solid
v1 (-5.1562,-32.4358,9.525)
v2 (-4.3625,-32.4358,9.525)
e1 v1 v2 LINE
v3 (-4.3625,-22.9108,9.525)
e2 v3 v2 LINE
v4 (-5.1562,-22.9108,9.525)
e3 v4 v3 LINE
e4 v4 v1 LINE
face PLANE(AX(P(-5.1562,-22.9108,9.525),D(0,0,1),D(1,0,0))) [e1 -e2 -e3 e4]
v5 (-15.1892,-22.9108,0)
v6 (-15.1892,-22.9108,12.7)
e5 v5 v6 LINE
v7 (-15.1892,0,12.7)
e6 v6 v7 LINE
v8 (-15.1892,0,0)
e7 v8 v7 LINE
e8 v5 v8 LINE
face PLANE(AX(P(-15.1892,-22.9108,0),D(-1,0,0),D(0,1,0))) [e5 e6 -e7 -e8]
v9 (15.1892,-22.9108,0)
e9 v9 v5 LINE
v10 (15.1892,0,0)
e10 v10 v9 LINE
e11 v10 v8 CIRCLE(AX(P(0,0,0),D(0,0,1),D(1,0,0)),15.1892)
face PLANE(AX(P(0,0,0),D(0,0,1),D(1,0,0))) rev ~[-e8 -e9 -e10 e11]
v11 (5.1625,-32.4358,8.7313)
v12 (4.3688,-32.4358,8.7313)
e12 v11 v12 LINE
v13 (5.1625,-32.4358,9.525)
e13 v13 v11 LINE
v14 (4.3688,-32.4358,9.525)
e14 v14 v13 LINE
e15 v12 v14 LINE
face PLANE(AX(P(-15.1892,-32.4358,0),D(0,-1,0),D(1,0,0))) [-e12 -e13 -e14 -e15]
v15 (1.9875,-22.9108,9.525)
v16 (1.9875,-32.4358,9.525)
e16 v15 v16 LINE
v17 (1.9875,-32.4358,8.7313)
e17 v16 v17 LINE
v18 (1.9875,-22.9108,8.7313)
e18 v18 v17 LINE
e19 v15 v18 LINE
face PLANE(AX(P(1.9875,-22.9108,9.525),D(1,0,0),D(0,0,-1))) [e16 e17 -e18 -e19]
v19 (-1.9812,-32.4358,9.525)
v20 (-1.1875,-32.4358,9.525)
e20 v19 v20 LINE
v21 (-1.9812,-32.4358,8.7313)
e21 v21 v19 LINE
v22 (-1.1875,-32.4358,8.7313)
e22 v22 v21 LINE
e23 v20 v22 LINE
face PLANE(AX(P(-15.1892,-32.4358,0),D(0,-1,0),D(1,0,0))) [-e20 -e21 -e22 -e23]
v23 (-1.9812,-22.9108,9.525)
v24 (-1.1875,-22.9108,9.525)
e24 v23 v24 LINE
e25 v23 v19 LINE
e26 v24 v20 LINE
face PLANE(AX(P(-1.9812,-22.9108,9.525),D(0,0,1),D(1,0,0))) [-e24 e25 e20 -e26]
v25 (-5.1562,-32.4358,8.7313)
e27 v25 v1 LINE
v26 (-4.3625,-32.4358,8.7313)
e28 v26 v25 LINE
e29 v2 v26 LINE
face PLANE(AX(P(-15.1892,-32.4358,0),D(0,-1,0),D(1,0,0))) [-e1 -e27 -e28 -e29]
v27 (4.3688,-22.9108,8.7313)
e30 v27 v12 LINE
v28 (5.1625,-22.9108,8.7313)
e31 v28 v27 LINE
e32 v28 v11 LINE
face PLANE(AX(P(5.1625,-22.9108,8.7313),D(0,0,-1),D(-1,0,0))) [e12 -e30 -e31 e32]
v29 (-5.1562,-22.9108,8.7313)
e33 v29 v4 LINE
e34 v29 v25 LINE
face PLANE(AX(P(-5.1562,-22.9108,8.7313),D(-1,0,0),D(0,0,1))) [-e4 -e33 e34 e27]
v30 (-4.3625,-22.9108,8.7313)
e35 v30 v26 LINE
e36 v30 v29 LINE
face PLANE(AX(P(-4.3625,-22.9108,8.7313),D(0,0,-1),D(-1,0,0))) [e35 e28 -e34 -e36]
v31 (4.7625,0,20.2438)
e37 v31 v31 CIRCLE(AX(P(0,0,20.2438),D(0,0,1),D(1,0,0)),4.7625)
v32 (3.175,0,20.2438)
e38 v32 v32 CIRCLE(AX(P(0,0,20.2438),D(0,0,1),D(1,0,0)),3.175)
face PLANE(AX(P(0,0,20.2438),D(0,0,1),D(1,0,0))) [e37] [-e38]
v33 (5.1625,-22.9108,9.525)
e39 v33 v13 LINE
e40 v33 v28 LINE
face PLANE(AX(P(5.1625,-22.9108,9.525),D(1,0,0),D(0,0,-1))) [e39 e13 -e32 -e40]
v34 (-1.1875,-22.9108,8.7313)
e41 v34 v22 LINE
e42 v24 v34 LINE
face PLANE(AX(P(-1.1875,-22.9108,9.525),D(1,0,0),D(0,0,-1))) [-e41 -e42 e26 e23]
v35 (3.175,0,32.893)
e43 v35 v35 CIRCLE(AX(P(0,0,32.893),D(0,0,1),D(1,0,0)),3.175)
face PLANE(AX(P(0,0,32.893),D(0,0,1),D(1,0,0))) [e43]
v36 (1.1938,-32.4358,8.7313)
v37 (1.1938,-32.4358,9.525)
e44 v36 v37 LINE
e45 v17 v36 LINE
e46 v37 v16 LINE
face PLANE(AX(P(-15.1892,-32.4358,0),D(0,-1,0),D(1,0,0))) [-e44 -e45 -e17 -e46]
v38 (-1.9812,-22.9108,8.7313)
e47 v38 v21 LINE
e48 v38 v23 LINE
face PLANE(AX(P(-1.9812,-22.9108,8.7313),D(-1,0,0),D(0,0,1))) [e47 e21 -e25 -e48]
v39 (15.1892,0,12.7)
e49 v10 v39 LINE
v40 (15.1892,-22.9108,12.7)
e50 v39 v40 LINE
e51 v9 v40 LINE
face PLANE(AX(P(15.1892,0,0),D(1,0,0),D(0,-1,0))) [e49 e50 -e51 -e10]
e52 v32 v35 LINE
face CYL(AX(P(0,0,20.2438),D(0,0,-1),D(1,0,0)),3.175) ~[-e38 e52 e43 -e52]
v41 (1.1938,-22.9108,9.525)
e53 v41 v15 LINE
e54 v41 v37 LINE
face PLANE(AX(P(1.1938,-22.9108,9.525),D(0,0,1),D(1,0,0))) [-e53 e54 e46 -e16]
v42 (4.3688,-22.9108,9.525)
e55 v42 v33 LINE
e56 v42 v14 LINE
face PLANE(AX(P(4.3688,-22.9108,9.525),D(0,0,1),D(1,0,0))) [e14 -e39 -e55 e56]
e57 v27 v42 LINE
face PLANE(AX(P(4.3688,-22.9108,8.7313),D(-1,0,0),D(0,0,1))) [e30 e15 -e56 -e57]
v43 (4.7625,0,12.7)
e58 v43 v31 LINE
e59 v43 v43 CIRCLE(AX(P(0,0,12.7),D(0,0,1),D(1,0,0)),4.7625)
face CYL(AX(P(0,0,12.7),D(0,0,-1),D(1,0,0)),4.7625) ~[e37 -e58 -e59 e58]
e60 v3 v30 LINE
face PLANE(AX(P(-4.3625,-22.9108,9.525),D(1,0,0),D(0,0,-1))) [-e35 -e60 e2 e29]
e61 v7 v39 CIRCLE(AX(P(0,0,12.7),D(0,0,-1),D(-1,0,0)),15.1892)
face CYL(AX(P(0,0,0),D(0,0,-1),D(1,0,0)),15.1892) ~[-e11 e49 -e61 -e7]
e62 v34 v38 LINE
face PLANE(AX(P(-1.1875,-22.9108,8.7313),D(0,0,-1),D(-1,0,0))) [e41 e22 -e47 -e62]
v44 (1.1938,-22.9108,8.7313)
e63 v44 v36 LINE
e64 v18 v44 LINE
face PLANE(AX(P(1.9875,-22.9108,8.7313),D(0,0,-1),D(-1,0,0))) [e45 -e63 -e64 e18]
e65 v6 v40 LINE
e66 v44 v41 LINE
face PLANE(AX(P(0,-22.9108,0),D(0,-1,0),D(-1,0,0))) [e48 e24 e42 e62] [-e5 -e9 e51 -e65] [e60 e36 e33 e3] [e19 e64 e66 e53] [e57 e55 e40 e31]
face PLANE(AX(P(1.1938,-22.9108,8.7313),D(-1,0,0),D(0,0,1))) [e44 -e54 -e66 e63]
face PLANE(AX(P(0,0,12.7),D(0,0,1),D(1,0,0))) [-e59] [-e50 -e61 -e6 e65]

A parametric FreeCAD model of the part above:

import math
import FreeCAD as App
import Part
import Sketcher
Q = App.Units.Quantity

doc = App.newDocument("Part")
body = doc.addObject("PartDesign::Body", "Body")

# Sketch on XY plane
sketch1 = body.newObject("Sketcher::SketchObject", "Sketch")
sketch1.AttachmentSupport = (doc.getObject("XY_Plane"), [""])
sketch1.MapMode = "FlatFace"
sketch1.addGeometry(Part.LineSegment(App.Vector(-15, 0, 0), App.Vector(-15, -23, 0)), False)
sketch1.addGeometry(Part.LineSegment(App.Vector(-15, -23, 0), App.Vector(15, -23, 0)), False)
sketch1.addGeometry(Part.LineSegment(App.Vector(15, -23, 0), App.Vector(15, 0, 0)), False)
sketch1.addGeometry(Part.ArcOfCircle(Part.Circle(App.Vector(0, 0, 0), App.Vector(0, 0, 1), 15), math.radians(0), math.radians(180)), False)
sketch1.addConstraint(Sketcher.Constraint("Coincident", 0, 2, 1, 1))
sketch1.addConstraint(Sketcher.Constraint("Coincident", 1, 2, 2, 1))
sketch1.addConstraint(Sketcher.Constraint("Tangent", 2, 2, 3, 1))
sketch1.addConstraint(Sketcher.Constraint("Tangent", 3, 2, 0, 1))
sketch1.addConstraint(Sketcher.Constraint("Vertical", 0))
sketch1.addConstraint(Sketcher.Constraint("Horizontal", 1))
sketch1.addConstraint(Sketcher.Constraint("Vertical", 2))
sketch1.addConstraint(Sketcher.Constraint("Coincident", 3, 3, -1, 1))
sketch1.addConstraint(Sketcher.Constraint("Radius", 3, Q("0.598 in")))
sketch1.addConstraint(Sketcher.Constraint("DistanceY", 0, 2, 0, 1, Q("0.902 in")))
pad1 = body.newObject("PartDesign::Pad", "Pad")
pad1.Profile = sketch1
pad1.Length = Q("0.5 in")

# Sketch on XY plane
sketch2 = body.newObject("Sketcher::SketchObject", "Sketch001")
sketch2.AttachmentSupport = (doc.getObject("XY_Plane"), [""])
sketch2.MapMode = "FlatFace"
sketch2.AttachmentOffset = App.Placement(App.Vector(0, 0, 0.5 * 25.4), App.Rotation())
sketch2.addGeometry(Part.Circle(App.Vector(0, 0, 0), App.Vector(0, 0, 1), 4.8), False)
sketch2.addConstraint(Sketcher.Constraint("Coincident", 0, 3, -1, 1))
sketch2.addConstraint(Sketcher.Constraint("Diameter", 0, Q("0.375 in")))
pad2 = body.newObject("PartDesign::Pad", "Pad001")
pad2.Profile = sketch2
pad2.Length = Q("0.297 in")

# Sketch on XY plane
sketch3 = body.newObject("Sketcher::SketchObject", "Sketch002")
sketch3.AttachmentSupport = (doc.getObject("XY_Plane"), [""])
sketch3.MapMode = "FlatFace"
sketch3.AttachmentOffset = App.Placement(App.Vector(0, 0, 0.797 * 25.4), App.Rotation())
sketch3.addGeometry(Part.Circle(App.Vector(0, 0, 0), App.Vector(0, 0, 1), 3.2), False)
sketch3.addConstraint(Sketcher.Constraint("Coincident", 0, 3, -1, 1))
sketch3.addConstraint(Sketcher.Constraint("Diameter", 0, Q("0.25 in")))
pad3 = body.newObject("PartDesign::Pad", "Pad002")
pad3.Profile = sketch3
pad3.Length = Q("0.498 in")

# Sketch on XZ plane
sketch4 = body.newObject("Sketcher::SketchObject", "Sketch003")
sketch4.AttachmentSupport = (doc.getObject("XZ_Plane"), [""])
sketch4.MapMode = "FlatFace"
sketch4.AttachmentOffset = App.Placement(App.Vector(0, 0, 0.902 * 25.4), App.Rotation())
sketch4.addGeometry(Part.LineSegment(App.Vector(-4.4, 9.5, 0), App.Vector(-5.2, 9.5, 0)), False)
sketch4.addGeometry(Part.LineSegment(App.Vector(-5.2, 9.5, 0), App.Vector(-5.2, 8.7, 0)), False)
sketch4.addGeometry(Part.LineSegment(App.Vector(-5.2, 8.7, 0), App.Vector(-4.4, 8.7, 0)), False)
sketch4.addGeometry(Part.LineSegment(App.Vector(-4.4, 8.7, 0), App.Vector(-4.4, 9.5, 0)), False)
sketch4.addGeometry(Part.LineSegment(App.Vector(-1.2, 9.5, 0), App.Vector(-2, 9.5, 0)), False)
sketch4.addGeometry(Part.LineSegment(App.Vector(-2, 9.5, 0), App.Vector(-2, 8.7, 0)), False)
sketch4.addGeometry(Part.LineSegment(App.Vector(-2, 8.7, 0), App.Vector(-1.2, 8.7, 0)), False)
sketch4.addGeometry(Part.LineSegment(App.Vector(-1.2, 8.7, 0), App.Vector(-1.2, 9.5, 0)), False)
sketch4.addGeometry(Part.LineSegment(App.Vector(2, 9.5, 0), App.Vector(1.2, 9.5, 0)), False)
sketch4.addGeometry(Part.LineSegment(App.Vector(1.2, 9.5, 0), App.Vector(1.2, 8.7, 0)), False)
sketch4.addGeometry(Part.LineSegment(App.Vector(1.2, 8.7, 0), App.Vector(2, 8.7, 0)), False)
sketch4.addGeometry(Part.LineSegment(App.Vector(2, 8.7, 0), App.Vector(2, 9.5, 0)), False)
sketch4.addGeometry(Part.LineSegment(App.Vector(5.2, 9.5, 0), App.Vector(4.4, 9.5, 0)), False)
sketch4.addGeometry(Part.LineSegment(App.Vector(4.4, 9.5, 0), App.Vector(4.4, 8.7, 0)), False)
sketch4.addGeometry(Part.LineSegment(App.Vector(4.4, 8.7, 0), App.Vector(5.2, 8.7, 0)), False)
sketch4.addGeometry(Part.LineSegment(App.Vector(5.2, 8.7, 0), App.Vector(5.2, 9.5, 0)), False)
sketch4.addConstraint(Sketcher.Constraint("Coincident", 0, 2, 1, 1))
sketch4.addConstraint(Sketcher.Constraint("Coincident", 1, 2, 2, 1))
sketch4.addConstraint(Sketcher.Constraint("Coincident", 2, 2, 3, 1))
sketch4.addConstraint(Sketcher.Constraint("Coincident", 3, 2, 0, 1))
sketch4.addConstraint(Sketcher.Constraint("Coincident", 4, 2, 5, 1))
sketch4.addConstraint(Sketcher.Constraint("Coincident", 5, 2, 6, 1))
sketch4.addConstraint(Sketcher.Constraint("Coincident", 6, 2, 7, 1))
sketch4.addConstraint(Sketcher.Constraint("Coincident", 7, 2, 4, 1))
sketch4.addConstraint(Sketcher.Constraint("Coincident", 8, 2, 9, 1))
sketch4.addConstraint(Sketcher.Constraint("Coincident", 9, 2, 10, 1))
sketch4.addConstraint(Sketcher.Constraint("Coincident", 10, 2, 11, 1))
sketch4.addConstraint(Sketcher.Constraint("Coincident", 11, 2, 8, 1))
sketch4.addConstraint(Sketcher.Constraint("Coincident", 12, 2, 13, 1))
sketch4.addConstraint(Sketcher.Constraint("Coincident", 13, 2, 14, 1))
sketch4.addConstraint(Sketcher.Constraint("Coincident", 14, 2, 15, 1))
sketch4.addConstraint(Sketcher.Constraint("Coincident", 15, 2, 12, 1))
sketch4.addConstraint(Sketcher.Constraint("Horizontal", 0))
sketch4.addConstraint(Sketcher.Constraint("Vertical", 1))
sketch4.addConstraint(Sketcher.Constraint("Horizontal", 2))
sketch4.addConstraint(Sketcher.Constraint("Vertical", 3))
sketch4.addConstraint(Sketcher.Constraint("Horizontal", 4))
sketch4.addConstraint(Sketcher.Constraint("Vertical", 5))
sketch4.addConstraint(Sketcher.Constraint("Horizontal", 6))
sketch4.addConstraint(Sketcher.Constraint("Vertical", 7))
sketch4.addConstraint(Sketcher.Constraint("Horizontal", 8))
sketch4.addConstraint(Sketcher.Constraint("Vertical", 9))
sketch4.addConstraint(Sketcher.Constraint("Horizontal", 10))
sketch4.addConstraint(Sketcher.Constraint("Vertical", 11))
sketch4.addConstraint(Sketcher.Constraint("Horizontal", 12))
sketch4.addConstraint(Sketcher.Constraint("Vertical", 13))
sketch4.addConstraint(Sketcher.Constraint("Horizontal", 14))
sketch4.addConstraint(Sketcher.Constraint("Vertical", 15))
sketch4.addConstraint(Sketcher.Constraint("Horizontal", 3, 2, 4, 2))
sketch4.addConstraint(Sketcher.Constraint("Horizontal", 2, 2, 5, 2))
sketch4.addConstraint(Sketcher.Constraint("Horizontal", 7, 2, 8, 2))
sketch4.addConstraint(Sketcher.Constraint("Horizontal", 6, 2, 9, 2))
sketch4.addConstraint(Sketcher.Constraint("Horizontal", 11, 2, 12, 2))
sketch4.addConstraint(Sketcher.Constraint("Horizontal", 10, 2, 13, 2))
sketch4.addConstraint(Sketcher.Constraint("Equal", 2, 4))
sketch4.addConstraint(Sketcher.Constraint("Equal", 6, 8))
sketch4.addConstraint(Sketcher.Constraint("Equal", 10, 12))
sketch4.addConstraint(Sketcher.Constraint("Equal", 14, 1))
sketch4.addConstraint(Sketcher.Constraint("DistanceX", 0, 2, 0, 1, Q("0.031248 in")))
sketch4.addConstraint(Sketcher.Constraint("DistanceX", 0, 2, 4, 2, Q("0.125 in")))
sketch4.addConstraint(Sketcher.Constraint("DistanceX", 4, 2, 8, 2, Q("0.125 in")))
sketch4.addConstraint(Sketcher.Constraint("DistanceX", 8, 2, 12, 2, Q("0.125 in")))
sketch4.addConstraint(Sketcher.Constraint("DistanceX", 0, 2, -1, 1, Q("0.203 in")))
sketch4.addConstraint(Sketcher.Constraint("DistanceY", -1, 1, 0, 2, Q("0.375 in")))
pad4 = body.newObject("PartDesign::Pad", "Pad003")
pad4.Profile = sketch4
pad4.Length = Q("0.375 in")

doc.recompute()
